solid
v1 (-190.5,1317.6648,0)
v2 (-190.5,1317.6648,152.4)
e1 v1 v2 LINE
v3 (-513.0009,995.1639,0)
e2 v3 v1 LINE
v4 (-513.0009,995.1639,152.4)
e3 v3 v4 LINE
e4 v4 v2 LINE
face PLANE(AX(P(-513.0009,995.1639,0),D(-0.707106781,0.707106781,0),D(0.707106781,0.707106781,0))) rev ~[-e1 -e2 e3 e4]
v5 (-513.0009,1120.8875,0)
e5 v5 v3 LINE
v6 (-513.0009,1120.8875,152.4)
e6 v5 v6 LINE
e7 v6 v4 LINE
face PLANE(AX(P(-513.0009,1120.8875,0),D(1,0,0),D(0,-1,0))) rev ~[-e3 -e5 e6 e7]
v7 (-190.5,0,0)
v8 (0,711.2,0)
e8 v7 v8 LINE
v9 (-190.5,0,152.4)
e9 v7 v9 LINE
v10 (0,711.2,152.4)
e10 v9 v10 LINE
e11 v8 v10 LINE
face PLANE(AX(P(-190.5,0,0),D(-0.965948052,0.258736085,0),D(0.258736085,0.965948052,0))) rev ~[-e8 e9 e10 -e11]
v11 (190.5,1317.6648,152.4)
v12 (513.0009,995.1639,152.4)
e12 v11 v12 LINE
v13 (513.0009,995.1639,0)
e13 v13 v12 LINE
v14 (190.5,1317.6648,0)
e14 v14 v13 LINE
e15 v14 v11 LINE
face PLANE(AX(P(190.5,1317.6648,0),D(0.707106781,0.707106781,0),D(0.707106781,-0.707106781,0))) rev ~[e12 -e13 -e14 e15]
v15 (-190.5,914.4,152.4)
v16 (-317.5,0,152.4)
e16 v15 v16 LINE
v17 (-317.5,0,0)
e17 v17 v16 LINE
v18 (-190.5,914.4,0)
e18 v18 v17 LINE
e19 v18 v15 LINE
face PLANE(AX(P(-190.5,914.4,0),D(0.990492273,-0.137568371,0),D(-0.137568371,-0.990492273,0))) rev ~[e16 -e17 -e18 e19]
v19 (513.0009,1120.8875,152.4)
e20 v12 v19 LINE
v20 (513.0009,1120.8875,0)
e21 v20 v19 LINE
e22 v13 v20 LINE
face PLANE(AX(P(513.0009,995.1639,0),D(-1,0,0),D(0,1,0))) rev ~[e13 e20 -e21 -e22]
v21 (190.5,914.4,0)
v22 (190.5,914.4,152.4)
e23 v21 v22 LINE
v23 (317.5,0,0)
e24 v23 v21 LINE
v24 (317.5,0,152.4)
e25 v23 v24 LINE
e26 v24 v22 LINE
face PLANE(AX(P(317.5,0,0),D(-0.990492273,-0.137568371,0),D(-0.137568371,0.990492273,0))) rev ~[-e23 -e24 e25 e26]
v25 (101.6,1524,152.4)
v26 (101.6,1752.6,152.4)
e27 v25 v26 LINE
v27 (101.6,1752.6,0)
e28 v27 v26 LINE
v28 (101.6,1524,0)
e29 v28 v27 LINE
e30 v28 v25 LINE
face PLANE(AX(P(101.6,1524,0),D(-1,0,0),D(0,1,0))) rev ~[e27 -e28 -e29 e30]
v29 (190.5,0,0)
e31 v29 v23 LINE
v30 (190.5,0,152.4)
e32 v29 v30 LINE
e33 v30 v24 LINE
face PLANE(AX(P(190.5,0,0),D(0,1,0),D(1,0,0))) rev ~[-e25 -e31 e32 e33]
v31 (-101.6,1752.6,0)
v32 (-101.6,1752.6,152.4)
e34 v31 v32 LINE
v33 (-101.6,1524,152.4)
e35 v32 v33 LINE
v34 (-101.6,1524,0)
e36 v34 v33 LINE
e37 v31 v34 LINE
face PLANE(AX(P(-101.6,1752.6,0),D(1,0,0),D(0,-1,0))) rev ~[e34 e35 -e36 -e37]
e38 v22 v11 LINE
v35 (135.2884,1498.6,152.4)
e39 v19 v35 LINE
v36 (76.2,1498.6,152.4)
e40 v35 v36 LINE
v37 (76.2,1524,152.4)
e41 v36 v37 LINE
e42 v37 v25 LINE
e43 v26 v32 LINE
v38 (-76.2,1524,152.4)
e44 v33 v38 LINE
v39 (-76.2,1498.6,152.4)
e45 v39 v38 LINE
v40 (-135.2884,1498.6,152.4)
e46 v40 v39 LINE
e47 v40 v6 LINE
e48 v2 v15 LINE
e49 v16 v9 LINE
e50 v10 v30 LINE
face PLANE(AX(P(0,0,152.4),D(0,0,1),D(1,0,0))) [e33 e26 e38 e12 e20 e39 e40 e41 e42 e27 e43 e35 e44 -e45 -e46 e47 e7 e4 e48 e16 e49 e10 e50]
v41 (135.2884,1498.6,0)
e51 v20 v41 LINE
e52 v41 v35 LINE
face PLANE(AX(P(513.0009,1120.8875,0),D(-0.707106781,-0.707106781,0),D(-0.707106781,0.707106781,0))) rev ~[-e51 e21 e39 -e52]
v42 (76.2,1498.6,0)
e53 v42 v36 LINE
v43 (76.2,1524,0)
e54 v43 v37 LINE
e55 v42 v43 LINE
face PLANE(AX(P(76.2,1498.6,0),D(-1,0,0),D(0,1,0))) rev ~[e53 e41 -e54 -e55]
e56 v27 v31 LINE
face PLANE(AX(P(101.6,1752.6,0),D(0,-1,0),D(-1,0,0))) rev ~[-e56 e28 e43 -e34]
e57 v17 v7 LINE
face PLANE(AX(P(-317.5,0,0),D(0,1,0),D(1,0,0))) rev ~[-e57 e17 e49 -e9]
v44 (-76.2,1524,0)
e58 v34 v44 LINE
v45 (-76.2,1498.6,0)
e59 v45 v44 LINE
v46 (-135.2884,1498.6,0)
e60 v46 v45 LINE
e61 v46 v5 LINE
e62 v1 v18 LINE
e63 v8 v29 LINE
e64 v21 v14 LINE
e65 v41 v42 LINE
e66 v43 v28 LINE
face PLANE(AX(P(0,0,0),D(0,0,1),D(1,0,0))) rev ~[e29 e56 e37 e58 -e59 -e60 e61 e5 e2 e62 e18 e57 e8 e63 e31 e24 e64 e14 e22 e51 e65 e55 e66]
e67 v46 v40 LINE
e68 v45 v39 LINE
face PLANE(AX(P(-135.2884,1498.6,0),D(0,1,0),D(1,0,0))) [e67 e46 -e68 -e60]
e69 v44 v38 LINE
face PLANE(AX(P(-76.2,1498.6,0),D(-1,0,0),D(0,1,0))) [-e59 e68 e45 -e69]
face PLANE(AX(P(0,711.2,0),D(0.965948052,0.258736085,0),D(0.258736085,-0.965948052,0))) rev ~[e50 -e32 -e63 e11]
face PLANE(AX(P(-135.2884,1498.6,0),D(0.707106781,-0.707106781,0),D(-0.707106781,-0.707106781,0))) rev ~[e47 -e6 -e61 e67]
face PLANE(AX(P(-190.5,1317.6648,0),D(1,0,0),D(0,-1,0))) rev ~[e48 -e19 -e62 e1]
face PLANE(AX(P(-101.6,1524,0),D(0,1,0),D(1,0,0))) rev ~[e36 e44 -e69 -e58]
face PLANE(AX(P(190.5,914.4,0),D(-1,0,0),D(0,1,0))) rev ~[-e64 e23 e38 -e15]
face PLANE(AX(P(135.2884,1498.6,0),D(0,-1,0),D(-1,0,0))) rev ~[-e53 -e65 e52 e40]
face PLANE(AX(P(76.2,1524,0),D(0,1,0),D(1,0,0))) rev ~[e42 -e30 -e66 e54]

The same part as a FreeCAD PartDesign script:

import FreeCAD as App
import Part
import Sketcher
from FreeCAD import Vector
Q = App.Units.Quantity


def add_polygon(sketch, points):
    """Adds a closed chain of lines whose ends are joined by coincident constraints."""
    first, n = sketch.GeometryCount, len(points)
    for a, b in zip(points, points[1:] + points[:1]):
        sketch.addGeometry(Part.LineSegment(App.Vector(*a, 0), App.Vector(*b, 0)), False)
    for i in range(n):
        sketch.addConstraint(Sketcher.Constraint("Coincident", first + i, 2, first + (i + 1) % n, 1))

doc = App.newDocument("Part")
body = doc.addObject("PartDesign::Body", "Body")

sketch1 = body.newObject("Sketcher::SketchObject", "Sketch")
sketch1.AttachmentSupport = (doc.getObject("XY_Plane"), [""])
sketch1.MapMode = "FlatFace"
add_polygon(sketch1, [(101.6, 1524), (101.6, 1752.6), (-101.6, 1752.6), (-101.6, 1524), (-76.2, 1524), (-76.2, 1498.6), (-135.2884, 1498.6), (-513.0009, 1120.8875), (-513.0009, 995.1639), (-190.5, 1317.6648), (-190.5, 914.4), (-317.5, 0), (-190.5, 0), (0, 711.2), (190.5, 0), (317.5, 0), (190.5, 914.4), (190.5, 1317.6648), (513.0009, 995.1639), (513.0009, 1120.8875), (135.2884, 1498.6), (76.2, 1498.6), (76.2, 1524)])
sketch1.addConstraint([
    Sketcher.Constraint("Vertical", 0),
    Sketcher.Constraint("Horizontal", 1),
    Sketcher.Constraint("Vertical", 2),
    Sketcher.Constraint("Horizontal", 3),
    Sketcher.Constraint("Vertical", 4),
    Sketcher.Constraint("Horizontal", 5),
    Sketcher.Constraint("Vertical", 7),
    Sketcher.Constraint("Vertical", 9),
    Sketcher.Constraint("Horizontal", 11),
    Sketcher.Constraint("Horizontal", 14),
    Sketcher.Constraint("Vertical", 16),
    Sketcher.Constraint("Vertical", 18),
    Sketcher.Constraint("Horizontal", 20),
    Sketcher.Constraint("Vertical", 21),
    Sketcher.Constraint("Horizontal", 22),
    Sketcher.Constraint("Symmetric", 11, 2, 13, 2, -1, 1),
    Sketcher.Constraint("Symmetric", 10, 2, 14, 2, -2),
    Sketcher.Constraint("Symmetric", 9, 2, 15, 2, -2),
    Sketcher.Constraint("Symmetric", 7, 2, 17, 2, -2),
    Sketcher.Constraint("Symmetric", 5, 2, 19, 2, -2),
    Sketcher.Constraint("Symmetric", 3, 2, 21, 2, -2),
    Sketcher.Constraint("PointOnObject", 12, 2, -2),
    Sketcher.Constraint("Parallel", 6, 8),
    Sketcher.Constraint("Perpendicular", 8, 17),
    Sketcher.Constraint("Parallel", 17, 19),
    Sketcher.Constraint("Horizontal", 8, 2, 16, 2),
    Sketcher.Constraint("Vertical", 9, 2, 11, 2),
    Sketcher.Constraint("Equal", 3, 22),
    Sketcher.Constraint("Equal", 22, 4),
    Sketcher.Constraint("DistanceX", 1, 2, 1, 1, Q("8 in")),
    Sketcher.Constraint("DistanceX", 11, 1, 11, 2, Q("5 in")),
    Sketcher.Constraint("DistanceY", 0, 1, 0, 2, Q("9 in")),
    Sketcher.Constraint("DistanceY", -1, 1, 4, 2, Q("59 in")),
    Sketcher.Constraint("DistanceY", -1, 1, 9, 2, Q("36 in")),
    Sketcher.Constraint("DistanceY", -1, 1, 12, 2, Q("28 in")),
    Sketcher.Constraint("DistanceX", 11, 2, 13, 2, Q("15 in")),
    Sketcher.Constraint("DistanceX", 4, 2, 20, 2, Q("6 in")),
    Sketcher.Constraint("Distance", 8, Q("17.9561 in")),
    Sketcher.Constraint("DistanceX", 5, 2, 5, 1, Q("59.0884 mm")),
    Sketcher.Constraint("DistanceY", 7, 2, 7, 1, Q("125.7236 mm")),
])
pad1 = body.newObject("PartDesign::Pad", "Pad")
pad1.Profile = sketch1
pad1.Length = Q("6 in")

doc.recompute()
